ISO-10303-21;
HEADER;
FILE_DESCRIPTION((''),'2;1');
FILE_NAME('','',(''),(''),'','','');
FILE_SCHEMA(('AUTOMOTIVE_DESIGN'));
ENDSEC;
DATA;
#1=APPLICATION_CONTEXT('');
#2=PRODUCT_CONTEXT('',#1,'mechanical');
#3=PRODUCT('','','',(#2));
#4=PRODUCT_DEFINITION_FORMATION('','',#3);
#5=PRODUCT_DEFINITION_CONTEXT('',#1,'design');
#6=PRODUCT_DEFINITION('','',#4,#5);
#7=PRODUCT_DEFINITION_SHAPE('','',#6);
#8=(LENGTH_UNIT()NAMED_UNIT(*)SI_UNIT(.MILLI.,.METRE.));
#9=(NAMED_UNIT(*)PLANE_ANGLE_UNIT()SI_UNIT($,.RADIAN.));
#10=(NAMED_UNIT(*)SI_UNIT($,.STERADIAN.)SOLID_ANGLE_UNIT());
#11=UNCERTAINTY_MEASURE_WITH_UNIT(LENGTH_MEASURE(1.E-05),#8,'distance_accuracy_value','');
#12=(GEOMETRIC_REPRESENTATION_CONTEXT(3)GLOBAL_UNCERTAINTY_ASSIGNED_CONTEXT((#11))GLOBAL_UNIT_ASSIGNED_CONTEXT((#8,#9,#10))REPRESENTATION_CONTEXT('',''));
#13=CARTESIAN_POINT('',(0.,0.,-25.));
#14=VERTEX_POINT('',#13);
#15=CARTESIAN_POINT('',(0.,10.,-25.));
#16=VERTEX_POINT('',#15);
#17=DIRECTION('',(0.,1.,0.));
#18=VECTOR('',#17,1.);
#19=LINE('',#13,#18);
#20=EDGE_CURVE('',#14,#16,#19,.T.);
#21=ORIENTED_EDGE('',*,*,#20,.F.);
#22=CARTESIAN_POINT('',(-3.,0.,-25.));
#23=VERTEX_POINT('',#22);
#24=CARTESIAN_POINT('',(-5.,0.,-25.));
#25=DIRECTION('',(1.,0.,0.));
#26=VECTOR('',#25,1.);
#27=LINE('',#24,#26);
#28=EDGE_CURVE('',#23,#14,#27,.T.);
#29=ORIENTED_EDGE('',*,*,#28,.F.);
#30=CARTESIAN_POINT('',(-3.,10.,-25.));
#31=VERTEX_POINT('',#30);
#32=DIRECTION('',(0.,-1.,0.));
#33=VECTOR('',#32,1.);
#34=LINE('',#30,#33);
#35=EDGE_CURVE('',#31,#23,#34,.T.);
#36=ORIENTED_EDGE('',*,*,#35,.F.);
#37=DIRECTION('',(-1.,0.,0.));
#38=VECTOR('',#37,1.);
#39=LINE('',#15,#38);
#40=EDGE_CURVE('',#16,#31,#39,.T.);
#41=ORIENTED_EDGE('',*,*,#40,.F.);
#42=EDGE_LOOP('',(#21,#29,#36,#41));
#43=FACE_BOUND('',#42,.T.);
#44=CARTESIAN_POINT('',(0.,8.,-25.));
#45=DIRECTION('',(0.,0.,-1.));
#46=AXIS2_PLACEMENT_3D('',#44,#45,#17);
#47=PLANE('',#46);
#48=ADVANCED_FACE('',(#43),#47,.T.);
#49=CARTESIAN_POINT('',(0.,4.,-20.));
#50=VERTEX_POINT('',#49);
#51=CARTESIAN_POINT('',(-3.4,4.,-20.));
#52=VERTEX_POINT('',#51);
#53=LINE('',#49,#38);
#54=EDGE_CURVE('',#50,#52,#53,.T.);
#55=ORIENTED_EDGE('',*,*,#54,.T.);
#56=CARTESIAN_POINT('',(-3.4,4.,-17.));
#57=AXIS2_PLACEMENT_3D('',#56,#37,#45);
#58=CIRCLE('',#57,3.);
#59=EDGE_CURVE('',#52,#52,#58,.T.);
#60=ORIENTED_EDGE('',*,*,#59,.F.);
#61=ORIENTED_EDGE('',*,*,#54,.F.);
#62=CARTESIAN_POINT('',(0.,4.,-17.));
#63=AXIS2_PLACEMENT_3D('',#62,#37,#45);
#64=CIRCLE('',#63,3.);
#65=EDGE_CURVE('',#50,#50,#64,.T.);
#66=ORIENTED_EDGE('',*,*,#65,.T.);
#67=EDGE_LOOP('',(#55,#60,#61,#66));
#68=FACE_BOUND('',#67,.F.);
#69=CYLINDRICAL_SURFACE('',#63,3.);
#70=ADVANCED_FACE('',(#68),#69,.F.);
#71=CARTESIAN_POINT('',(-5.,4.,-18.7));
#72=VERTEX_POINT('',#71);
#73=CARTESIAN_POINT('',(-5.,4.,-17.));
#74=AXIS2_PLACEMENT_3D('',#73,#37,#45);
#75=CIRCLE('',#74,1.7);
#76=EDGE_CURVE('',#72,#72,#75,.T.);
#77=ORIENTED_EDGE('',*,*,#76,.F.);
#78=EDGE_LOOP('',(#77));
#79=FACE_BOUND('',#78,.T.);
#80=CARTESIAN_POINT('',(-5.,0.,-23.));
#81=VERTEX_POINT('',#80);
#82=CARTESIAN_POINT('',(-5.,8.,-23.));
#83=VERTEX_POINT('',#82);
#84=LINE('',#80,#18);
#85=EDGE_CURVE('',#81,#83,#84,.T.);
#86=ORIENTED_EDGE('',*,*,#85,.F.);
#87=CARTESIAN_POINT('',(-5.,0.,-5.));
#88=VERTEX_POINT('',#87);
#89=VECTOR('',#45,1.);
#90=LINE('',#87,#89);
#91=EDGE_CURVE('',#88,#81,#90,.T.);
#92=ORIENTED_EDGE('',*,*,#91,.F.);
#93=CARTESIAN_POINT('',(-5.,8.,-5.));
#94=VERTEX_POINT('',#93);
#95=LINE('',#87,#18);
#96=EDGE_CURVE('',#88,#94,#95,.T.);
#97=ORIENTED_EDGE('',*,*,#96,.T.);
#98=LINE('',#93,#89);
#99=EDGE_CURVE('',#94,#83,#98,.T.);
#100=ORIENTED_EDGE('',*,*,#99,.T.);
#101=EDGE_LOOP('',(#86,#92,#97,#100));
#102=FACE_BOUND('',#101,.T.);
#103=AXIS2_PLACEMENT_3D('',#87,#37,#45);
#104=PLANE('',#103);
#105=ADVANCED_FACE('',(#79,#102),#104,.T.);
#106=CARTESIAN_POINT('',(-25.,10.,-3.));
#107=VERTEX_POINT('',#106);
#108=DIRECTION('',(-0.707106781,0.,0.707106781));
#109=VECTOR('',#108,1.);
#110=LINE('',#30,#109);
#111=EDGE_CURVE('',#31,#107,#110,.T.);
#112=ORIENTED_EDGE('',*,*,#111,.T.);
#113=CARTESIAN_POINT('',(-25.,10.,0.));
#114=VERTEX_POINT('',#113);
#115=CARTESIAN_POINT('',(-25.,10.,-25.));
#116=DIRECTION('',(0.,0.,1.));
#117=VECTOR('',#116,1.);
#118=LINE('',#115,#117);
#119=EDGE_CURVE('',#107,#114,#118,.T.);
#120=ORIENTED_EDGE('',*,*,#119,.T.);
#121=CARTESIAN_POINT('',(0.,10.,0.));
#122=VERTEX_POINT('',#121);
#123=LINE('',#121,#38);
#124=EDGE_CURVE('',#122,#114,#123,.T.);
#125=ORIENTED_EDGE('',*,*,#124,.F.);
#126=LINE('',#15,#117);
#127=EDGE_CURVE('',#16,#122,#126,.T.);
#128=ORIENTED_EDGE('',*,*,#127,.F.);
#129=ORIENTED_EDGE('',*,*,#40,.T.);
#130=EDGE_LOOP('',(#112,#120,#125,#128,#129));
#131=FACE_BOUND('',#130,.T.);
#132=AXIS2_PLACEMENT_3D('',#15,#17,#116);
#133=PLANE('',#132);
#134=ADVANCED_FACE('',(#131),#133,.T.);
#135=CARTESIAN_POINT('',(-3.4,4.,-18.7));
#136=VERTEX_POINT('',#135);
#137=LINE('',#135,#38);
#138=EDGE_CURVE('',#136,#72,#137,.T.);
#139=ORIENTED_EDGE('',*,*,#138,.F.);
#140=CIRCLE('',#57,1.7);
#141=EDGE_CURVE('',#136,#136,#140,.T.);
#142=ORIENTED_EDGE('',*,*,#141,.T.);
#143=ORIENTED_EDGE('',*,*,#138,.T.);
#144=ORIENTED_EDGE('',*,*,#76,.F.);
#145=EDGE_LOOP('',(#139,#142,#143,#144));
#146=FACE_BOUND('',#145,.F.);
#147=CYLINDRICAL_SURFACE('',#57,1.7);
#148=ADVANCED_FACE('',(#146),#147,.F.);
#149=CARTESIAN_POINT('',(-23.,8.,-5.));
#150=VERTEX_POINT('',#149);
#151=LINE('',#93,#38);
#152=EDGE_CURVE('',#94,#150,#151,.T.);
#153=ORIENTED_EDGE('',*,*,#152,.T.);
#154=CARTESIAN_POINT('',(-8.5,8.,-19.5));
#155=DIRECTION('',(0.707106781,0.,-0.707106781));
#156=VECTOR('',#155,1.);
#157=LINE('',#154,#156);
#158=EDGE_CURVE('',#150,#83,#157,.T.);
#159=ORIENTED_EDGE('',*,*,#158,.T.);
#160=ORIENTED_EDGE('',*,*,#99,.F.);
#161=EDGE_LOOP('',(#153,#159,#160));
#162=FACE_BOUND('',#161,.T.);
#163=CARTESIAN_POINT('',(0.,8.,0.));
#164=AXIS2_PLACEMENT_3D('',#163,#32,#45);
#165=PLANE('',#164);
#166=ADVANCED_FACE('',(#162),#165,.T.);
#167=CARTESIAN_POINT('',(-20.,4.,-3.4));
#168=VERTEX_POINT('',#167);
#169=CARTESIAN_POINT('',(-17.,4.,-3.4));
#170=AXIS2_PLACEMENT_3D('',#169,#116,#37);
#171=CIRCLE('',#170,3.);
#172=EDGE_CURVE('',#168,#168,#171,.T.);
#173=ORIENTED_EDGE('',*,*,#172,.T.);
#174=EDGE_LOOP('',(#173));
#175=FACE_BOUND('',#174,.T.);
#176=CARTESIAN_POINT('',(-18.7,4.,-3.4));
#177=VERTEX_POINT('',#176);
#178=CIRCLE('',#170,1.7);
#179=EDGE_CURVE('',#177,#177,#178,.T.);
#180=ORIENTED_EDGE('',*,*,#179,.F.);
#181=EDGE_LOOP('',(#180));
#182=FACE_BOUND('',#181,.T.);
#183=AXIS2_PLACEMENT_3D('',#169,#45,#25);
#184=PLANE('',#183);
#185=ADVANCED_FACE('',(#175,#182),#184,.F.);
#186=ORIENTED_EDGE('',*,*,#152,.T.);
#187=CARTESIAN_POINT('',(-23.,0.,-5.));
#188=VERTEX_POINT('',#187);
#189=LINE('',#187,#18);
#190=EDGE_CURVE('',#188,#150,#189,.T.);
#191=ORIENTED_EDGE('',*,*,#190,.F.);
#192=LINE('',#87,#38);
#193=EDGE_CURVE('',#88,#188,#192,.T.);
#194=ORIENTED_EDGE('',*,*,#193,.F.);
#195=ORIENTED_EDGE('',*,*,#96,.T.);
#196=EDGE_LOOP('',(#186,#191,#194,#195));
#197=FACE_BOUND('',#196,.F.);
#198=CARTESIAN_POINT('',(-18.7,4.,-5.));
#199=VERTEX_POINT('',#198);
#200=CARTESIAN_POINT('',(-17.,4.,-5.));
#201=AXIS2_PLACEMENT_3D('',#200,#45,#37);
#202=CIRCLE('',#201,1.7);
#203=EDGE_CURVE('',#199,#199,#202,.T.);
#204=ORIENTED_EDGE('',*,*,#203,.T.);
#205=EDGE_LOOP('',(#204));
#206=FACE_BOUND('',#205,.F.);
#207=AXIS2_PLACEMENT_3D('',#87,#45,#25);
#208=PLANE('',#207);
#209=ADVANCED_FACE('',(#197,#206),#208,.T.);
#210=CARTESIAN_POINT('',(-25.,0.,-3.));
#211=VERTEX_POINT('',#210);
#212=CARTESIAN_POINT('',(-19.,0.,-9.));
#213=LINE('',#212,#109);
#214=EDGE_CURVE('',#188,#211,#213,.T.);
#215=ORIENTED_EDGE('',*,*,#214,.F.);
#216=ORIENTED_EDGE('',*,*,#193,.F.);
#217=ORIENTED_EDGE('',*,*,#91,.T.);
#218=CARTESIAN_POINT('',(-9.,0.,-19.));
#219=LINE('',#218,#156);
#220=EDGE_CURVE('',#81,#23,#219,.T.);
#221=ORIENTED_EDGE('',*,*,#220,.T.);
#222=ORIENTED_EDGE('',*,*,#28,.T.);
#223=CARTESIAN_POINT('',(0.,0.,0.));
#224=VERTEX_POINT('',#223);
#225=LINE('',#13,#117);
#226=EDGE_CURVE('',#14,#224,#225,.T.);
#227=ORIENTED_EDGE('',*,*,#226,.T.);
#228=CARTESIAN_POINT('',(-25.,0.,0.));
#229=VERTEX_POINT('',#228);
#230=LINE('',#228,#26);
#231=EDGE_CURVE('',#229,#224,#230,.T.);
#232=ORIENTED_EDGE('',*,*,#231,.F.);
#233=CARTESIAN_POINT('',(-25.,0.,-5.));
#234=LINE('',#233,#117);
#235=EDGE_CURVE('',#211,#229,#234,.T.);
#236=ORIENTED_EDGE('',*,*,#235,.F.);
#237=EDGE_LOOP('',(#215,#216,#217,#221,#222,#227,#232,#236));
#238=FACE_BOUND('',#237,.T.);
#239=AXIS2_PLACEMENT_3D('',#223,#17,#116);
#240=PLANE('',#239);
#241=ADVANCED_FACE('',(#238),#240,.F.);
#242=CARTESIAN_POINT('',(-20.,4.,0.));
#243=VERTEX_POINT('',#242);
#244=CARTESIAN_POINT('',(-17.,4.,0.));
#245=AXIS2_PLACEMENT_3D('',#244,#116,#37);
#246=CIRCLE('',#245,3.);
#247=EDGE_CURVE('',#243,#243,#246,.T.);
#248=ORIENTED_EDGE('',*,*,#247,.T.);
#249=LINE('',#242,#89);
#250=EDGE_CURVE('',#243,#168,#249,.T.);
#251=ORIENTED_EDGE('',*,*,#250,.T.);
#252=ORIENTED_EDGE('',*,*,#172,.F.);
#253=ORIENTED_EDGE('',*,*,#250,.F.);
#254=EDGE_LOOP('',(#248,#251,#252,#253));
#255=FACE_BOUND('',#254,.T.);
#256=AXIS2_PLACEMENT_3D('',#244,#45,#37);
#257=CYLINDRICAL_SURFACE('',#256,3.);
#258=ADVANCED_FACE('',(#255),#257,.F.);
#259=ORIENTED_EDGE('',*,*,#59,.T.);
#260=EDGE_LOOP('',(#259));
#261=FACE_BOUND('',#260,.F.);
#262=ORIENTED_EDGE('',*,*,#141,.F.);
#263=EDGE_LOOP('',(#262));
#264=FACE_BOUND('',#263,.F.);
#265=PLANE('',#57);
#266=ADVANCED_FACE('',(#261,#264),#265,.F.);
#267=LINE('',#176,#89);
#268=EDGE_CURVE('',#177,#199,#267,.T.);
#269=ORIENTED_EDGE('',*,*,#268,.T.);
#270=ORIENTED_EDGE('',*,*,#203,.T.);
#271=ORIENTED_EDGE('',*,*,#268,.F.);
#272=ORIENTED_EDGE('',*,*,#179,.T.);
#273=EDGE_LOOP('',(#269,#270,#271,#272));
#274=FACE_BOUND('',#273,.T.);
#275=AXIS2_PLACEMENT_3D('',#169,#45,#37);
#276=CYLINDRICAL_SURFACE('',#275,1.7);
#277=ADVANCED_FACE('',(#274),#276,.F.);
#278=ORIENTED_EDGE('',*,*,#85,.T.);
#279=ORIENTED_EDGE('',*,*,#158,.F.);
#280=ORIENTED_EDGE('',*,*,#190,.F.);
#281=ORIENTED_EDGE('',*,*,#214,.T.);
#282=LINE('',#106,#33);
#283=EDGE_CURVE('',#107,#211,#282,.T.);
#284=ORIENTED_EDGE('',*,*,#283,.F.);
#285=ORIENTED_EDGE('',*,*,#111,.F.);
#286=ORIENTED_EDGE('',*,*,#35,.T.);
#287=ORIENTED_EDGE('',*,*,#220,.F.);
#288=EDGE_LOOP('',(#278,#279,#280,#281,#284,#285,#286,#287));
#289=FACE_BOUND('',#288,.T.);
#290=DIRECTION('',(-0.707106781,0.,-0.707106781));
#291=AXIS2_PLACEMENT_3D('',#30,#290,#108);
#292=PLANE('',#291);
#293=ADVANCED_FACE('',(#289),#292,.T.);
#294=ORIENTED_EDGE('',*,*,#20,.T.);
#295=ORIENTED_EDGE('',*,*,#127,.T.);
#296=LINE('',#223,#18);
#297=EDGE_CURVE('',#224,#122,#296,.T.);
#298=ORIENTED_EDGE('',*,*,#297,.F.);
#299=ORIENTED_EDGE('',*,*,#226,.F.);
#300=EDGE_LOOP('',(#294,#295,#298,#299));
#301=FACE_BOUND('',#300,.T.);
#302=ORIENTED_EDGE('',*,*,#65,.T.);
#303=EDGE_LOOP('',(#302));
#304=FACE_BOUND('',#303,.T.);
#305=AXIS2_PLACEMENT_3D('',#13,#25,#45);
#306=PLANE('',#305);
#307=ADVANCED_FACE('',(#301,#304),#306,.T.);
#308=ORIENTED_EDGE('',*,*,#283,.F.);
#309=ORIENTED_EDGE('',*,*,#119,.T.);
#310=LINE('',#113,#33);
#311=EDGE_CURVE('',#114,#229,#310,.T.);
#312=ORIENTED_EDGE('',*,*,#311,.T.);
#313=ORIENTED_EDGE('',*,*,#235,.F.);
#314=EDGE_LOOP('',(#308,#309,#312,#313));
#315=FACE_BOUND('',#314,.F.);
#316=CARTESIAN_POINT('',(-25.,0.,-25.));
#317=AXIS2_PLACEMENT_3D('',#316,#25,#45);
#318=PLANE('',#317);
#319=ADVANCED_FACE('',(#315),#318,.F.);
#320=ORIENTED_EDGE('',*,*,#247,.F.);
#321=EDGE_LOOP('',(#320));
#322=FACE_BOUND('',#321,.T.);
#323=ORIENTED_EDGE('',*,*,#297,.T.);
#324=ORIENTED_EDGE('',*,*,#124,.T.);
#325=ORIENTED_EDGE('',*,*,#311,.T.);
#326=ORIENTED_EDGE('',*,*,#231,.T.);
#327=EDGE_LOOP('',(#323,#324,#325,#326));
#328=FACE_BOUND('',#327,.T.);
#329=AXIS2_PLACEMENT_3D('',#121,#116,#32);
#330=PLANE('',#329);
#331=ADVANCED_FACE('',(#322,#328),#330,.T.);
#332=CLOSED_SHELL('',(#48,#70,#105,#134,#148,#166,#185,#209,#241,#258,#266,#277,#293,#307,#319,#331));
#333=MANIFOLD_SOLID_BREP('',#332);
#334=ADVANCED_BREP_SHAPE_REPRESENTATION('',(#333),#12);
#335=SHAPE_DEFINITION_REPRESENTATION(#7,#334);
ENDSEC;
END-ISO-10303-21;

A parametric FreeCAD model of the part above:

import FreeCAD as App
import Part
import Sketcher

V = App.Vector


def edges_at(feature, points):
    """Names of the edges that pass closest to the given points."""
    edges = feature.Shape.Edges
    near = lambda p: min(range(len(edges)), key=lambda i: edges[i].distToShape(Part.Vertex(*p))[0])
    return sorted({f"Edge{near(p) + 1}" for p in points})

doc = App.newDocument("Part")
params = doc.addObject("Spreadsheet::Sheet", "Params")
for row, (alias, value) in enumerate([
    ("sketch1_width", "5 mm"),
    ("sketch1_height", "20 mm"),
    ("sketch1_height2", "25 mm"),
    ("pad1_length", "8 mm"),
    ("sketch2_diameter", "3.4 mm"),
    ("hole_diameter", "3.4 mm"),
    ("hole_cbore_diameter", "6 mm"),
    ("hole_cbore_depth", "3.4 mm"),
    ("chamfer_size", "2 mm"),
    ("sketch3_width", "2 mm"),
    ("sketch3_height", "25 mm"),
    ("pad2_length", "25 mm"),
    ("sketch4_width", "22 mm"),
    ("pocket1_length", "10 mm"),
], start=1):
    params.set(f"A{row}", alias)
    params.set(f"B{row}", "=" + value)
    params.setAlias(f"B{row}", alias)

body = doc.addObject("PartDesign::Body", "Body")

# Sketch on XZ plane
sketch1 = body.newObject("Sketcher::SketchObject", "Sketch")
sketch1.AttachmentSupport = (doc.getObject("XZ_Plane"), [""])
sketch1.MapMode = "FlatFace"
sketch1.addGeometry([
    Part.LineSegment(V(-5, -25, 0), V(-5, -5, 0)),
    Part.LineSegment(V(-5, -5, 0), V(0, 0, 0)),
    Part.LineSegment(V(0, 0, 0), V(0, -25, 0)),
    Part.LineSegment(V(0, -25, 0), V(-5, -25, 0)),
], False)
sketch1.addConstraint([
    Sketcher.Constraint("Coincident", 0, 2, 1, 1),
    Sketcher.Constraint("Coincident", 1, 2, 2, 1),
    Sketcher.Constraint("Coincident", 2, 2, 3, 1),
    Sketcher.Constraint("Coincident", 3, 2, 0, 1),
    Sketcher.Constraint("Vertical", 0),
    Sketcher.Constraint("Vertical", 2),
    Sketcher.Constraint("Horizontal", 3),
    Sketcher.Constraint("Coincident", 1, 2, -1, 1),
    Sketcher.Constraint("DistanceX", 3, 2, 3, 1, 5.0),
    Sketcher.Constraint("DistanceY", 0, 1, 0, 2, 20.0),
    Sketcher.Constraint("DistanceY", 2, 2, 2, 1, 25.0),
])
sketch1.setExpression("Constraints[8]", "Params.sketch1_width")
sketch1.setExpression("Constraints[9]", "Params.sketch1_height")
sketch1.setExpression("Constraints[10]", "Params.sketch1_height2")
pad1 = body.newObject("PartDesign::Pad", "Pad")
pad1.Profile = sketch1
pad1.setExpression("Length", "Params.pad1_length")
pad1.Reversed = True

# Sketch on YZ plane
sketch2 = body.newObject("Sketcher::SketchObject", "Sketch001")
sketch2.AttachmentSupport = (doc.getObject("YZ_Plane"), [""])
sketch2.MapMode = "FlatFace"
sketch2.addGeometry(Part.Circle(V(4, -17, 0), V(0, 0, 1), 1.7), False)
sketch2.addConstraint([
    Sketcher.Constraint("Diameter", 0, 3.4),
    Sketcher.Constraint("DistanceX", -1, 1, 0, 3, 4.0),
    Sketcher.Constraint("DistanceY", 0, 3, -1, 1, 17.0),
])
sketch2.setExpression("Constraints[0]", "Params.sketch2_diameter")
doc.recompute()
hole = body.newObject("PartDesign::Hole", "Hole")
hole.Profile = sketch2
hole.ThreadType = "None"
hole.setExpression("Diameter", "Params.hole_diameter")
hole.DepthType = "ThroughAll"
hole.HoleCutType = "Counterbore"
hole.setExpression("HoleCutDiameter", "Params.hole_cbore_diameter")
hole.setExpression("HoleCutDepth", "Params.hole_cbore_depth")
doc.recompute()

chamfer = body.newObject("PartDesign::Chamfer", "Chamfer")
chamfer.Base = (hole, edges_at(hole, [(-5, 4, -25)]))
chamfer.setExpression("Size", "Params.chamfer_size")
doc.recompute()

datumplane = body.newObject("PartDesign::Plane", "DatumPlane")
datumplane.Placement = App.Placement(V(0, 0, 0), App.Rotation(V(-0.707106781, 0, -0.707106781), V(0, -1, 0), V(-0.707106781, 0, 0.707106781), "ZXY"))
mirrored = body.newObject("PartDesign::Mirrored", "Mirrored")
mirrored.Originals = [pad1, hole, chamfer]
mirrored.MirrorPlane = (datumplane, [""])
body.Tip = mirrored

# Sketch on YZ plane
sketch3 = body.newObject("Sketcher::SketchObject", "Sketch002")
sketch3.AttachmentSupport = (doc.getObject("YZ_Plane"), [""])
sketch3.MapMode = "FlatFace"
sketch3.addGeometry([
    Part.LineSegment(V(10, 0, 0), V(8, 0, 0)),
    Part.LineSegment(V(8, 0, 0), V(8, -25, 0)),
    Part.LineSegment(V(8, -25, 0), V(10, -25, 0)),
    Part.LineSegment(V(10, -25, 0), V(10, 0, 0)),
], False)
sketch3.addConstraint([
    Sketcher.Constraint("Coincident", 0, 2, 1, 1),
    Sketcher.Constraint("Coincident", 1, 2, 2, 1),
    Sketcher.Constraint("Coincident", 2, 2, 3, 1),
    Sketcher.Constraint("Coincident", 3, 2, 0, 1),
    Sketcher.Constraint("Horizontal", 0),
    Sketcher.Constraint("Vertical", 1),
    Sketcher.Constraint("Horizontal", 2),
    Sketcher.Constraint("Vertical", 3),
    Sketcher.Constraint("PointOnObject", 0, 2, -1),
    Sketcher.Constraint("DistanceX", 0, 2, 0, 1, 2.0),
    Sketcher.Constraint("DistanceY", 1, 2, 1, 1, 25.0),
    Sketcher.Constraint("DistanceX", -1, 1, 0, 2, 8.0),
])
sketch3.setExpression("Constraints[9]", "Params.sketch3_width")
sketch3.setExpression("Constraints[10]", "Params.sketch3_height")
pad2 = body.newObject("PartDesign::Pad", "Pad001")
pad2.Profile = sketch3
pad2.setExpression("Length", "Params.pad2_length")
pad2.Reversed = True

# Sketch on XZ plane
sketch4 = body.newObject("Sketcher::SketchObject", "Sketch003")
sketch4.AttachmentSupport = (doc.getObject("XZ_Plane"), [""])
sketch4.MapMode = "FlatFace"
sketch4.AttachmentOffset = App.Placement(V(0, 0, -10), App.Rotation())
sketch4.addGeometry([
    Part.LineSegment(V(-25, -3, 0), V(-3, -25, 0)),
    Part.LineSegment(V(-3, -25, 0), V(-25, -25, 0)),
    Part.LineSegment(V(-25, -25, 0), V(-25, -3, 0)),
], False)
sketch4.addConstraint([
    Sketcher.Constraint("Coincident", 0, 2, 1, 1),
    Sketcher.Constraint("Coincident", 1, 2, 2, 1),
    Sketcher.Constraint("Coincident", 2, 2, 0, 1),
    Sketcher.Constraint("Horizontal", 1),
    Sketcher.Constraint("Vertical", 2),
    Sketcher.Constraint("Equal", 1, 2),
    Sketcher.Constraint("DistanceX", 1, 2, 1, 1, 22.0),
    Sketcher.Constraint("DistanceX", 0, 2, -1, 1, 3.0),
    Sketcher.Constraint("DistanceY", 0, 2, -1, 1, 25.0),
])
sketch4.setExpression("Constraints[6]", "Params.sketch4_width")
pocket1 = body.newObject("PartDesign::Pocket", "Pocket")
pocket1.Profile = sketch4
pocket1.setExpression("Length", "Params.pocket1_length")
pocket1.Reversed = True

doc.recompute()
